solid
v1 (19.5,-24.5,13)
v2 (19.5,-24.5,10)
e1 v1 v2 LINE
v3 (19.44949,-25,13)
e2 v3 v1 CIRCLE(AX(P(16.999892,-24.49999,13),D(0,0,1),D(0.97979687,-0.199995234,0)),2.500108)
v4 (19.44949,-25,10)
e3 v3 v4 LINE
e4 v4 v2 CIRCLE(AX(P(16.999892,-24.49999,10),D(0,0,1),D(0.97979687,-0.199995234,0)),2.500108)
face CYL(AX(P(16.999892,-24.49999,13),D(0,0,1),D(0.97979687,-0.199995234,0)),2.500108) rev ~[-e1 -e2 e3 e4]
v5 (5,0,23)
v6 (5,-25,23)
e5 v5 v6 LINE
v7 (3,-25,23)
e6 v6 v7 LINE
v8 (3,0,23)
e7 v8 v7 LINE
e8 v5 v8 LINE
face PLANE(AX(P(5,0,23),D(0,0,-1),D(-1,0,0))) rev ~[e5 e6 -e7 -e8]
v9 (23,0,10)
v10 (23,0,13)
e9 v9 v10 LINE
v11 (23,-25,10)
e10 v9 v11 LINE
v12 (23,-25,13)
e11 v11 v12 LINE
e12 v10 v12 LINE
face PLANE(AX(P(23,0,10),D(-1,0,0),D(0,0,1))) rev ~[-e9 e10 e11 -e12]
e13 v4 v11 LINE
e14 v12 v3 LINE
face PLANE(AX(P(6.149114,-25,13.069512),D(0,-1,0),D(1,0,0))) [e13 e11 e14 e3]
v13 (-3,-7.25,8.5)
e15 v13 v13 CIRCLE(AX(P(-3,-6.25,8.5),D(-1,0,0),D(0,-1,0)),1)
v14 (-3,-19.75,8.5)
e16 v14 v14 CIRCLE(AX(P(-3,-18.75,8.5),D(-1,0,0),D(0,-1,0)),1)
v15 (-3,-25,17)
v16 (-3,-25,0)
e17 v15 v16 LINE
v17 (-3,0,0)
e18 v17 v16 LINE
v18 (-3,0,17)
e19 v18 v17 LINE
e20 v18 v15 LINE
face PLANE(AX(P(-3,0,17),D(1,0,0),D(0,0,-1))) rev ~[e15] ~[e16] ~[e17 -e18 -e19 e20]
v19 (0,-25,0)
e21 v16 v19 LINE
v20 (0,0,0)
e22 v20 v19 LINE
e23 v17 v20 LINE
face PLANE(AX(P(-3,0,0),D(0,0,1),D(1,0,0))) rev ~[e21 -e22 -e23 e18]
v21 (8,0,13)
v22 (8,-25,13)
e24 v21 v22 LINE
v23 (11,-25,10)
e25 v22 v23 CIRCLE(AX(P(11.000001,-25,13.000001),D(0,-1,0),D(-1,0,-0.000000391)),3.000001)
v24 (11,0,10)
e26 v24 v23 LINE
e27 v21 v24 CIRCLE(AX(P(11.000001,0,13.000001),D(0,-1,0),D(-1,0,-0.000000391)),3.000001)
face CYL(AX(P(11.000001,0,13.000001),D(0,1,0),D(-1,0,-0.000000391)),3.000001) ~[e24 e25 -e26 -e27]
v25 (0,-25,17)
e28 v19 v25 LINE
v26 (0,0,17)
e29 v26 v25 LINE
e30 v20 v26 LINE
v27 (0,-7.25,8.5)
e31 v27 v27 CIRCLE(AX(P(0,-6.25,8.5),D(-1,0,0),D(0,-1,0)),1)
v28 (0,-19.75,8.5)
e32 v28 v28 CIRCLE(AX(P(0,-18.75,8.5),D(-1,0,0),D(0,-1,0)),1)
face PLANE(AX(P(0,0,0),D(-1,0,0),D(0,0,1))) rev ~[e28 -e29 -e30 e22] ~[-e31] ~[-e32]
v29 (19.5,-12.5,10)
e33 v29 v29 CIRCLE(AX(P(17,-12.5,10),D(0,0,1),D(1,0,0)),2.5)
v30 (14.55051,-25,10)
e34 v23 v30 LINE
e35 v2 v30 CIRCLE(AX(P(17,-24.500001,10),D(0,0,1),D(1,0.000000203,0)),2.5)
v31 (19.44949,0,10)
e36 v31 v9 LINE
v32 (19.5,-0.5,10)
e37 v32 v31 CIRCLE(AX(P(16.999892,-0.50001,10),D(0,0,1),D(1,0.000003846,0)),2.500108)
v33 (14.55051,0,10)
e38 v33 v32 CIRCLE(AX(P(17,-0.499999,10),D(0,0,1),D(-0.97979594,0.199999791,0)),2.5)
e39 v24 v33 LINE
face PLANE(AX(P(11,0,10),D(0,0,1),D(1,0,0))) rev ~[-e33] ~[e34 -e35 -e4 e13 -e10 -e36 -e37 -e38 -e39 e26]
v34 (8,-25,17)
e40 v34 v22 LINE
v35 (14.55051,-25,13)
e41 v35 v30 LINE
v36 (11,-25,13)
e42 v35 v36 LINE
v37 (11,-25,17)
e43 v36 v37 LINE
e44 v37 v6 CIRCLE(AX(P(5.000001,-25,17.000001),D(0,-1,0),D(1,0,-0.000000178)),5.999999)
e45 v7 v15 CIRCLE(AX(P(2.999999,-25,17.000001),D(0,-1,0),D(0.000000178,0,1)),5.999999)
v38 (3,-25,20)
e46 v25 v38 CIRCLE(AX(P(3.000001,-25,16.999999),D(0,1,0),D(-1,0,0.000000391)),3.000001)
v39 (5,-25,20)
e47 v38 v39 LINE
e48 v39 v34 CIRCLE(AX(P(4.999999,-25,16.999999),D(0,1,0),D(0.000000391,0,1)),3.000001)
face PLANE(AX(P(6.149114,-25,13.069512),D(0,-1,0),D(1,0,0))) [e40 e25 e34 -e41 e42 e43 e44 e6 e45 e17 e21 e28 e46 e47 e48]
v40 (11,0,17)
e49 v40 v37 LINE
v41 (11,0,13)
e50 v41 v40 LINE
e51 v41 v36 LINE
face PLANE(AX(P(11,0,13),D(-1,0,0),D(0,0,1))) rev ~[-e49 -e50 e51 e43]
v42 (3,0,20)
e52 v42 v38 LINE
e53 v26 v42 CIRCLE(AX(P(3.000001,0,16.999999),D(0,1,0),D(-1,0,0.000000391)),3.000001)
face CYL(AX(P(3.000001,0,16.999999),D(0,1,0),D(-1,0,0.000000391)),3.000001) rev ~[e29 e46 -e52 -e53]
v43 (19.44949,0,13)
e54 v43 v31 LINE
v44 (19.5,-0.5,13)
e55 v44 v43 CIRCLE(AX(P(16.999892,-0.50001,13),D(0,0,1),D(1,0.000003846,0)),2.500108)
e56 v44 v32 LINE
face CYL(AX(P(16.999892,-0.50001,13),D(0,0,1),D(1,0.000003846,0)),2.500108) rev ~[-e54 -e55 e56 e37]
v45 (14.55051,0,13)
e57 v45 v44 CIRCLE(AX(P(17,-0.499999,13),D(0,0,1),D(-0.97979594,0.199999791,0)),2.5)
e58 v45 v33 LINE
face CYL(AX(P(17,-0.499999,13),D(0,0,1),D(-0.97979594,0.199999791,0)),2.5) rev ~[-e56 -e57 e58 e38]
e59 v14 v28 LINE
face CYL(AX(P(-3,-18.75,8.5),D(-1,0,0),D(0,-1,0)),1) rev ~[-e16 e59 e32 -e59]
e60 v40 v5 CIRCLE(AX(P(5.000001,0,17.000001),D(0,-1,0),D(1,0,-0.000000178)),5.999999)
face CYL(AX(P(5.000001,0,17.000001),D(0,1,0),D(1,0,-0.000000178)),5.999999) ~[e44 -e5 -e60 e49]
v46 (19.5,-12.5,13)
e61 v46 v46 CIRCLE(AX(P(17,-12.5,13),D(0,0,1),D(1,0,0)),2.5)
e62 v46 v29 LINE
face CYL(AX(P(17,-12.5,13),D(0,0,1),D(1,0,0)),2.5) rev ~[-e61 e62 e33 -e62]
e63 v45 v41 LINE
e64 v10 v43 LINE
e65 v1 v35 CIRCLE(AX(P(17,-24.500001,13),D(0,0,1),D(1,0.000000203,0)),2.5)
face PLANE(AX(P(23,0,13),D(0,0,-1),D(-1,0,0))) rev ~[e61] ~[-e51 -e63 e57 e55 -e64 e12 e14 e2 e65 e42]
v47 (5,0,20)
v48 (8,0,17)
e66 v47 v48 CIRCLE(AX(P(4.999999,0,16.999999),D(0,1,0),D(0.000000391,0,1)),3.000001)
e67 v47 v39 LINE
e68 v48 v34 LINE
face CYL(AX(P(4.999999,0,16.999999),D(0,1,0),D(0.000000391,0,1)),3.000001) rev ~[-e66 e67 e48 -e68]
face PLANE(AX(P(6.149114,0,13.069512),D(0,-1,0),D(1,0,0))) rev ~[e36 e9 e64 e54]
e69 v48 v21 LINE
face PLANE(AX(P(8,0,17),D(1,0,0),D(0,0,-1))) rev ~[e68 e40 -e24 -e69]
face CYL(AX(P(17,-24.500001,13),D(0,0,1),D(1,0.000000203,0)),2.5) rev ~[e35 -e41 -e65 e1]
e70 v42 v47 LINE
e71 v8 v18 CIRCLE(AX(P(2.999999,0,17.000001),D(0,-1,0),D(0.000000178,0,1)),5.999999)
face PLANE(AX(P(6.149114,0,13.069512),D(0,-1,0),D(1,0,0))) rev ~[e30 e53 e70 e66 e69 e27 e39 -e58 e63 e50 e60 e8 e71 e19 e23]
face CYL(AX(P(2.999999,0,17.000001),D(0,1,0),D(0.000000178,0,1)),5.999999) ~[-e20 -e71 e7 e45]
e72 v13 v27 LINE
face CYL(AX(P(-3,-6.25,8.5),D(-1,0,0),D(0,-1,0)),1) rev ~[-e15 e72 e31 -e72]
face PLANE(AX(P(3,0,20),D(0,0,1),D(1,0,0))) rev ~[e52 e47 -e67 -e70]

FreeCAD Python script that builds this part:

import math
import FreeCAD as App
import Part
import Sketcher

V = App.Vector

doc = App.newDocument("Part")
body = doc.addObject("PartDesign::Body", "Body")

# Sketch on XZ plane
sketch1 = body.newObject("Sketcher::SketchObject", "Sketch")
sketch1.AttachmentSupport = (doc.getObject("XZ_Plane"), [""])
sketch1.MapMode = "FlatFace"
sketch1.addGeometry(Part.LineSegment(V(-3, 0, 0), V(0, 0, 0)), False)
sketch1.addGeometry(Part.LineSegment(V(0, 0, 0), V(0, 17, 0)), False)
sketch1.addGeometry(Part.ArcOfCircle(Part.Circle(V(3, 17, 0), V(0, 0, 1), 3), math.radians(90), math.radians(180)), False)
sketch1.addGeometry(Part.LineSegment(V(3, 20, 0), V(5, 20, 0)), False)
sketch1.addGeometry(Part.ArcOfCircle(Part.Circle(V(5, 17, 0), V(0, 0, 1), 3), math.radians(0), math.radians(90)), False)
sketch1.addGeometry(Part.LineSegment(V(8, 17, 0), V(8, 13, 0)), False)
sketch1.addGeometry(Part.ArcOfCircle(Part.Circle(V(11, 13, 0), V(0, 0, 1), 3), math.radians(-180), math.radians(-90)), False)
sketch1.addGeometry(Part.LineSegment(V(11, 10, 0), V(23, 10, 0)), False)
sketch1.addGeometry(Part.LineSegment(V(23, 10, 0), V(23, 13, 0)), False)
sketch1.addGeometry(Part.LineSegment(V(23, 13, 0), V(11, 13, 0)), False)
sketch1.addGeometry(Part.LineSegment(V(11, 13, 0), V(11, 17, 0)), False)
sketch1.addGeometry(Part.ArcOfCircle(Part.Circle(V(5, 17, 0), V(0, 0, 1), 6), math.radians(0), math.radians(90)), False)
sketch1.addGeometry(Part.LineSegment(V(5, 23, 0), V(3, 23, 0)), False)
sketch1.addGeometry(Part.ArcOfCircle(Part.Circle(V(3, 17, 0), V(0, 0, 1), 6), math.radians(90), math.radians(180)), False)
sketch1.addGeometry(Part.LineSegment(V(-3, 17, 0), V(-3, 0, 0)), False)
sketch1.addConstraint(Sketcher.Constraint("Coincident", 0, 2, 1, 1))
sketch1.addConstraint(Sketcher.Constraint("Tangent", 1, 2, 2, 2))
sketch1.addConstraint(Sketcher.Constraint("Tangent", 2, 1, 3, 1))
sketch1.addConstraint(Sketcher.Constraint("Tangent", 3, 2, 4, 2))
sketch1.addConstraint(Sketcher.Constraint("Tangent", 4, 1, 5, 1))
sketch1.addConstraint(Sketcher.Constraint("Tangent", 5, 2, 6, 1))
sketch1.addConstraint(Sketcher.Constraint("Tangent", 6, 2, 7, 1))
sketch1.addConstraint(Sketcher.Constraint("Coincident", 7, 2, 8, 1))
sketch1.addConstraint(Sketcher.Constraint("Coincident", 8, 2, 9, 1))
sketch1.addConstraint(Sketcher.Constraint("Coincident", 9, 2, 10, 1))
sketch1.addConstraint(Sketcher.Constraint("Tangent", 10, 2, 11, 1))
sketch1.addConstraint(Sketcher.Constraint("Tangent", 11, 2, 12, 1))
sketch1.addConstraint(Sketcher.Constraint("Tangent", 12, 2, 13, 1))
sketch1.addConstraint(Sketcher.Constraint("Tangent", 13, 2, 14, 1))
sketch1.addConstraint(Sketcher.Constraint("Coincident", 14, 2, 0, 1))
sketch1.addConstraint(Sketcher.Constraint("Horizontal", 0))
sketch1.addConstraint(Sketcher.Constraint("Vertical", 1))
sketch1.addConstraint(Sketcher.Constraint("Horizontal", 3))
sketch1.addConstraint(Sketcher.Constraint("Vertical", 5))
sketch1.addConstraint(Sketcher.Constraint("Horizontal", 7))
sketch1.addConstraint(Sketcher.Constraint("Vertical", 8))
sketch1.addConstraint(Sketcher.Constraint("Horizontal", 9))
sketch1.addConstraint(Sketcher.Constraint("Vertical", 10))
sketch1.addConstraint(Sketcher.Constraint("Horizontal", 12))
sketch1.addConstraint(Sketcher.Constraint("Vertical", 14))
sketch1.addConstraint(Sketcher.Constraint("Coincident", 0, 2, -1, 1))
sketch1.addConstraint(Sketcher.Constraint("Coincident", 11, 3, 4, 3))
sketch1.addConstraint(Sketcher.Constraint("Coincident", 13, 3, 2, 3))
sketch1.addConstraint(Sketcher.Constraint("Coincident", 9, 2, 6, 3))
sketch1.addConstraint(Sketcher.Constraint("Equal", 2, 4))
sketch1.addConstraint(Sketcher.Constraint("Equal", 4, 6))
sketch1.addConstraint(Sketcher.Constraint("Radius", 2, 3.000001))
sketch1.addConstraint(Sketcher.Constraint("DistanceX", 3, 1, 3, 2, 2.0))
sketch1.addConstraint(Sketcher.Constraint("DistanceX", 7, 1, 7, 2, 12.0))
sketch1.addConstraint(Sketcher.Constraint("DistanceY", 1, 1, 1, 2, 17.0))
sketch1.addConstraint(Sketcher.Constraint("DistanceY", 5, 2, 5, 1, 4.0))
pad1 = body.newObject("PartDesign::Pad", "Pad")
pad1.Profile = sketch1
pad1.Length = 25

# Sketch on XY plane
sketch2 = body.newObject("Sketcher::SketchObject", "Sketch001")
sketch2.AttachmentSupport = (doc.getObject("XY_Plane"), [""])
sketch2.MapMode = "FlatFace"
sketch2.AttachmentOffset = App.Placement(V(0, 0, 13), App.Rotation())
sketch2.addGeometry(Part.Circle(V(17, -12.5, 0), V(0, 0, 1), 2.5), False)
sketch2.addGeometry(Part.LineSegment(V(14.6, -25, 0), V(19.4, -25, 0)), False)
sketch2.addGeometry(Part.ArcOfCircle(Part.Circle(V(17, -24.5, 0), V(0, 0, 1), 2.5), math.radians(-11.54), math.radians(0)), False)
sketch2.addGeometry(Part.ArcOfCircle(Part.Circle(V(17, -24.5, 0), V(0, 0, 1), 2.5), math.radians(0), math.radians(192)), False)
sketch2.addGeometry(Part.ArcOfCircle(Part.Circle(V(17, -0.5, 0), V(0, 0, 1), 2.5), math.radians(168), math.radians(360)), False)
sketch2.addGeometry(Part.ArcOfCircle(Part.Circle(V(17, -0.5, 0), V(0, 0, 1), 2.5), math.radians(0), math.radians(11.54)), False)
sketch2.addGeometry(Part.LineSegment(V(19.4, 0, 0), V(14.6, 0, 0)), False)
sketch2.addConstraint(Sketcher.Constraint("Coincident", 1, 2, 2, 1))
sketch2.addConstraint(Sketcher.Constraint("Coincident", 2, 2, 3, 1))
sketch2.addConstraint(Sketcher.Constraint("Coincident", 3, 2, 1, 1))
sketch2.addConstraint(Sketcher.Constraint("Coincident", 4, 2, 5, 1))
sketch2.addConstraint(Sketcher.Constraint("Coincident", 5, 2, 6, 1))
sketch2.addConstraint(Sketcher.Constraint("Coincident", 6, 2, 4, 1))
sketch2.addConstraint(Sketcher.Constraint("Horizontal", 1))
sketch2.addConstraint(Sketcher.Constraint("Horizontal", 6))
sketch2.addConstraint(Sketcher.Constraint("Equal", 0, 3))
sketch2.addConstraint(Sketcher.Constraint("Equal", 3, 4))
sketch2.addConstraint(Sketcher.Constraint("Equal", 2, 5))
sketch2.addConstraint(Sketcher.Constraint("PointOnObject", 5, 2, -1))
sketch2.addConstraint(Sketcher.Constraint("Horizontal", 3, 3, 2, 2))
sketch2.addConstraint(Sketcher.Constraint("Vertical", 0, 3, 3, 3))
sketch2.addConstraint(Sketcher.Constraint("Vertical", 3, 3, 4, 3))
sketch2.addConstraint(Sketcher.Constraint("Vertical", 1, 2, 5, 2))
sketch2.addConstraint(Sketcher.Constraint("Vertical", 3, 2, 6, 2))
sketch2.addConstraint(Sketcher.Constraint("Diameter", 0, 5.0))
sketch2.addConstraint(Sketcher.Constraint("DistanceX", -1, 1, 0, 3, 17.0))
sketch2.addConstraint(Sketcher.Constraint("DistanceY", 1, 2, -1, 1, 25.0))
sketch2.addConstraint(Sketcher.Constraint("DistanceY", 3, 3, 0, 3, 12.000001))
sketch2.addConstraint(Sketcher.Constraint("DistanceY", 0, 3, 4, 3, 12.000001))
sketch2.addConstraint(Sketcher.Constraint("DistanceY", 0, 3, 4, 2, 12.0))
sketch2.addConstraint(Sketcher.Constraint("Radius", 2, 2.500108))
sketch2.addConstraint(Sketcher.Constraint("DistanceX", 1, 1, 1, 2, 4.89898))
pocket1 = body.newObject("PartDesign::Pocket", "Pocket")
pocket1.Profile = sketch2
pocket1.Length = 25

# Sketch on YZ plane
sketch3 = body.newObject("Sketcher::SketchObject", "Sketch002")
sketch3.AttachmentSupport = (doc.getObject("YZ_Plane"), [""])
sketch3.MapMode = "FlatFace"
sketch3.AttachmentOffset = App.Placement(V(0, 0, -3), App.Rotation())
sketch3.addGeometry(Part.Circle(V(-18.8, 8.5, 0), V(0, 0, 1), 1), False)
sketch3.addGeometry(Part.Circle(V(-6.2, 8.5, 0), V(0, 0, 1), 1), False)
sketch3.addConstraint(Sketcher.Constraint("Equal", 0, 1))
sketch3.addConstraint(Sketcher.Constraint("Horizontal", 0, 3, 1, 3))
sketch3.addConstraint(Sketcher.Constraint("Diameter", 0, 2.0))
sketch3.addConstraint(Sketcher.Constraint("DistanceY", -1, 1, 0, 3, 8.5))
sketch3.addConstraint(Sketcher.Constraint("DistanceX", 0, 3, 1, 3, 12.5))
sketch3.addConstraint(Sketcher.Constraint("DistanceX", 0, 3, -1, 1, 18.75))
pocket2 = body.newObject("PartDesign::Pocket", "Pocket001")
pocket2.Profile = sketch3
pocket2.Length = 5
pocket2.Reversed = True

doc.recompute()
